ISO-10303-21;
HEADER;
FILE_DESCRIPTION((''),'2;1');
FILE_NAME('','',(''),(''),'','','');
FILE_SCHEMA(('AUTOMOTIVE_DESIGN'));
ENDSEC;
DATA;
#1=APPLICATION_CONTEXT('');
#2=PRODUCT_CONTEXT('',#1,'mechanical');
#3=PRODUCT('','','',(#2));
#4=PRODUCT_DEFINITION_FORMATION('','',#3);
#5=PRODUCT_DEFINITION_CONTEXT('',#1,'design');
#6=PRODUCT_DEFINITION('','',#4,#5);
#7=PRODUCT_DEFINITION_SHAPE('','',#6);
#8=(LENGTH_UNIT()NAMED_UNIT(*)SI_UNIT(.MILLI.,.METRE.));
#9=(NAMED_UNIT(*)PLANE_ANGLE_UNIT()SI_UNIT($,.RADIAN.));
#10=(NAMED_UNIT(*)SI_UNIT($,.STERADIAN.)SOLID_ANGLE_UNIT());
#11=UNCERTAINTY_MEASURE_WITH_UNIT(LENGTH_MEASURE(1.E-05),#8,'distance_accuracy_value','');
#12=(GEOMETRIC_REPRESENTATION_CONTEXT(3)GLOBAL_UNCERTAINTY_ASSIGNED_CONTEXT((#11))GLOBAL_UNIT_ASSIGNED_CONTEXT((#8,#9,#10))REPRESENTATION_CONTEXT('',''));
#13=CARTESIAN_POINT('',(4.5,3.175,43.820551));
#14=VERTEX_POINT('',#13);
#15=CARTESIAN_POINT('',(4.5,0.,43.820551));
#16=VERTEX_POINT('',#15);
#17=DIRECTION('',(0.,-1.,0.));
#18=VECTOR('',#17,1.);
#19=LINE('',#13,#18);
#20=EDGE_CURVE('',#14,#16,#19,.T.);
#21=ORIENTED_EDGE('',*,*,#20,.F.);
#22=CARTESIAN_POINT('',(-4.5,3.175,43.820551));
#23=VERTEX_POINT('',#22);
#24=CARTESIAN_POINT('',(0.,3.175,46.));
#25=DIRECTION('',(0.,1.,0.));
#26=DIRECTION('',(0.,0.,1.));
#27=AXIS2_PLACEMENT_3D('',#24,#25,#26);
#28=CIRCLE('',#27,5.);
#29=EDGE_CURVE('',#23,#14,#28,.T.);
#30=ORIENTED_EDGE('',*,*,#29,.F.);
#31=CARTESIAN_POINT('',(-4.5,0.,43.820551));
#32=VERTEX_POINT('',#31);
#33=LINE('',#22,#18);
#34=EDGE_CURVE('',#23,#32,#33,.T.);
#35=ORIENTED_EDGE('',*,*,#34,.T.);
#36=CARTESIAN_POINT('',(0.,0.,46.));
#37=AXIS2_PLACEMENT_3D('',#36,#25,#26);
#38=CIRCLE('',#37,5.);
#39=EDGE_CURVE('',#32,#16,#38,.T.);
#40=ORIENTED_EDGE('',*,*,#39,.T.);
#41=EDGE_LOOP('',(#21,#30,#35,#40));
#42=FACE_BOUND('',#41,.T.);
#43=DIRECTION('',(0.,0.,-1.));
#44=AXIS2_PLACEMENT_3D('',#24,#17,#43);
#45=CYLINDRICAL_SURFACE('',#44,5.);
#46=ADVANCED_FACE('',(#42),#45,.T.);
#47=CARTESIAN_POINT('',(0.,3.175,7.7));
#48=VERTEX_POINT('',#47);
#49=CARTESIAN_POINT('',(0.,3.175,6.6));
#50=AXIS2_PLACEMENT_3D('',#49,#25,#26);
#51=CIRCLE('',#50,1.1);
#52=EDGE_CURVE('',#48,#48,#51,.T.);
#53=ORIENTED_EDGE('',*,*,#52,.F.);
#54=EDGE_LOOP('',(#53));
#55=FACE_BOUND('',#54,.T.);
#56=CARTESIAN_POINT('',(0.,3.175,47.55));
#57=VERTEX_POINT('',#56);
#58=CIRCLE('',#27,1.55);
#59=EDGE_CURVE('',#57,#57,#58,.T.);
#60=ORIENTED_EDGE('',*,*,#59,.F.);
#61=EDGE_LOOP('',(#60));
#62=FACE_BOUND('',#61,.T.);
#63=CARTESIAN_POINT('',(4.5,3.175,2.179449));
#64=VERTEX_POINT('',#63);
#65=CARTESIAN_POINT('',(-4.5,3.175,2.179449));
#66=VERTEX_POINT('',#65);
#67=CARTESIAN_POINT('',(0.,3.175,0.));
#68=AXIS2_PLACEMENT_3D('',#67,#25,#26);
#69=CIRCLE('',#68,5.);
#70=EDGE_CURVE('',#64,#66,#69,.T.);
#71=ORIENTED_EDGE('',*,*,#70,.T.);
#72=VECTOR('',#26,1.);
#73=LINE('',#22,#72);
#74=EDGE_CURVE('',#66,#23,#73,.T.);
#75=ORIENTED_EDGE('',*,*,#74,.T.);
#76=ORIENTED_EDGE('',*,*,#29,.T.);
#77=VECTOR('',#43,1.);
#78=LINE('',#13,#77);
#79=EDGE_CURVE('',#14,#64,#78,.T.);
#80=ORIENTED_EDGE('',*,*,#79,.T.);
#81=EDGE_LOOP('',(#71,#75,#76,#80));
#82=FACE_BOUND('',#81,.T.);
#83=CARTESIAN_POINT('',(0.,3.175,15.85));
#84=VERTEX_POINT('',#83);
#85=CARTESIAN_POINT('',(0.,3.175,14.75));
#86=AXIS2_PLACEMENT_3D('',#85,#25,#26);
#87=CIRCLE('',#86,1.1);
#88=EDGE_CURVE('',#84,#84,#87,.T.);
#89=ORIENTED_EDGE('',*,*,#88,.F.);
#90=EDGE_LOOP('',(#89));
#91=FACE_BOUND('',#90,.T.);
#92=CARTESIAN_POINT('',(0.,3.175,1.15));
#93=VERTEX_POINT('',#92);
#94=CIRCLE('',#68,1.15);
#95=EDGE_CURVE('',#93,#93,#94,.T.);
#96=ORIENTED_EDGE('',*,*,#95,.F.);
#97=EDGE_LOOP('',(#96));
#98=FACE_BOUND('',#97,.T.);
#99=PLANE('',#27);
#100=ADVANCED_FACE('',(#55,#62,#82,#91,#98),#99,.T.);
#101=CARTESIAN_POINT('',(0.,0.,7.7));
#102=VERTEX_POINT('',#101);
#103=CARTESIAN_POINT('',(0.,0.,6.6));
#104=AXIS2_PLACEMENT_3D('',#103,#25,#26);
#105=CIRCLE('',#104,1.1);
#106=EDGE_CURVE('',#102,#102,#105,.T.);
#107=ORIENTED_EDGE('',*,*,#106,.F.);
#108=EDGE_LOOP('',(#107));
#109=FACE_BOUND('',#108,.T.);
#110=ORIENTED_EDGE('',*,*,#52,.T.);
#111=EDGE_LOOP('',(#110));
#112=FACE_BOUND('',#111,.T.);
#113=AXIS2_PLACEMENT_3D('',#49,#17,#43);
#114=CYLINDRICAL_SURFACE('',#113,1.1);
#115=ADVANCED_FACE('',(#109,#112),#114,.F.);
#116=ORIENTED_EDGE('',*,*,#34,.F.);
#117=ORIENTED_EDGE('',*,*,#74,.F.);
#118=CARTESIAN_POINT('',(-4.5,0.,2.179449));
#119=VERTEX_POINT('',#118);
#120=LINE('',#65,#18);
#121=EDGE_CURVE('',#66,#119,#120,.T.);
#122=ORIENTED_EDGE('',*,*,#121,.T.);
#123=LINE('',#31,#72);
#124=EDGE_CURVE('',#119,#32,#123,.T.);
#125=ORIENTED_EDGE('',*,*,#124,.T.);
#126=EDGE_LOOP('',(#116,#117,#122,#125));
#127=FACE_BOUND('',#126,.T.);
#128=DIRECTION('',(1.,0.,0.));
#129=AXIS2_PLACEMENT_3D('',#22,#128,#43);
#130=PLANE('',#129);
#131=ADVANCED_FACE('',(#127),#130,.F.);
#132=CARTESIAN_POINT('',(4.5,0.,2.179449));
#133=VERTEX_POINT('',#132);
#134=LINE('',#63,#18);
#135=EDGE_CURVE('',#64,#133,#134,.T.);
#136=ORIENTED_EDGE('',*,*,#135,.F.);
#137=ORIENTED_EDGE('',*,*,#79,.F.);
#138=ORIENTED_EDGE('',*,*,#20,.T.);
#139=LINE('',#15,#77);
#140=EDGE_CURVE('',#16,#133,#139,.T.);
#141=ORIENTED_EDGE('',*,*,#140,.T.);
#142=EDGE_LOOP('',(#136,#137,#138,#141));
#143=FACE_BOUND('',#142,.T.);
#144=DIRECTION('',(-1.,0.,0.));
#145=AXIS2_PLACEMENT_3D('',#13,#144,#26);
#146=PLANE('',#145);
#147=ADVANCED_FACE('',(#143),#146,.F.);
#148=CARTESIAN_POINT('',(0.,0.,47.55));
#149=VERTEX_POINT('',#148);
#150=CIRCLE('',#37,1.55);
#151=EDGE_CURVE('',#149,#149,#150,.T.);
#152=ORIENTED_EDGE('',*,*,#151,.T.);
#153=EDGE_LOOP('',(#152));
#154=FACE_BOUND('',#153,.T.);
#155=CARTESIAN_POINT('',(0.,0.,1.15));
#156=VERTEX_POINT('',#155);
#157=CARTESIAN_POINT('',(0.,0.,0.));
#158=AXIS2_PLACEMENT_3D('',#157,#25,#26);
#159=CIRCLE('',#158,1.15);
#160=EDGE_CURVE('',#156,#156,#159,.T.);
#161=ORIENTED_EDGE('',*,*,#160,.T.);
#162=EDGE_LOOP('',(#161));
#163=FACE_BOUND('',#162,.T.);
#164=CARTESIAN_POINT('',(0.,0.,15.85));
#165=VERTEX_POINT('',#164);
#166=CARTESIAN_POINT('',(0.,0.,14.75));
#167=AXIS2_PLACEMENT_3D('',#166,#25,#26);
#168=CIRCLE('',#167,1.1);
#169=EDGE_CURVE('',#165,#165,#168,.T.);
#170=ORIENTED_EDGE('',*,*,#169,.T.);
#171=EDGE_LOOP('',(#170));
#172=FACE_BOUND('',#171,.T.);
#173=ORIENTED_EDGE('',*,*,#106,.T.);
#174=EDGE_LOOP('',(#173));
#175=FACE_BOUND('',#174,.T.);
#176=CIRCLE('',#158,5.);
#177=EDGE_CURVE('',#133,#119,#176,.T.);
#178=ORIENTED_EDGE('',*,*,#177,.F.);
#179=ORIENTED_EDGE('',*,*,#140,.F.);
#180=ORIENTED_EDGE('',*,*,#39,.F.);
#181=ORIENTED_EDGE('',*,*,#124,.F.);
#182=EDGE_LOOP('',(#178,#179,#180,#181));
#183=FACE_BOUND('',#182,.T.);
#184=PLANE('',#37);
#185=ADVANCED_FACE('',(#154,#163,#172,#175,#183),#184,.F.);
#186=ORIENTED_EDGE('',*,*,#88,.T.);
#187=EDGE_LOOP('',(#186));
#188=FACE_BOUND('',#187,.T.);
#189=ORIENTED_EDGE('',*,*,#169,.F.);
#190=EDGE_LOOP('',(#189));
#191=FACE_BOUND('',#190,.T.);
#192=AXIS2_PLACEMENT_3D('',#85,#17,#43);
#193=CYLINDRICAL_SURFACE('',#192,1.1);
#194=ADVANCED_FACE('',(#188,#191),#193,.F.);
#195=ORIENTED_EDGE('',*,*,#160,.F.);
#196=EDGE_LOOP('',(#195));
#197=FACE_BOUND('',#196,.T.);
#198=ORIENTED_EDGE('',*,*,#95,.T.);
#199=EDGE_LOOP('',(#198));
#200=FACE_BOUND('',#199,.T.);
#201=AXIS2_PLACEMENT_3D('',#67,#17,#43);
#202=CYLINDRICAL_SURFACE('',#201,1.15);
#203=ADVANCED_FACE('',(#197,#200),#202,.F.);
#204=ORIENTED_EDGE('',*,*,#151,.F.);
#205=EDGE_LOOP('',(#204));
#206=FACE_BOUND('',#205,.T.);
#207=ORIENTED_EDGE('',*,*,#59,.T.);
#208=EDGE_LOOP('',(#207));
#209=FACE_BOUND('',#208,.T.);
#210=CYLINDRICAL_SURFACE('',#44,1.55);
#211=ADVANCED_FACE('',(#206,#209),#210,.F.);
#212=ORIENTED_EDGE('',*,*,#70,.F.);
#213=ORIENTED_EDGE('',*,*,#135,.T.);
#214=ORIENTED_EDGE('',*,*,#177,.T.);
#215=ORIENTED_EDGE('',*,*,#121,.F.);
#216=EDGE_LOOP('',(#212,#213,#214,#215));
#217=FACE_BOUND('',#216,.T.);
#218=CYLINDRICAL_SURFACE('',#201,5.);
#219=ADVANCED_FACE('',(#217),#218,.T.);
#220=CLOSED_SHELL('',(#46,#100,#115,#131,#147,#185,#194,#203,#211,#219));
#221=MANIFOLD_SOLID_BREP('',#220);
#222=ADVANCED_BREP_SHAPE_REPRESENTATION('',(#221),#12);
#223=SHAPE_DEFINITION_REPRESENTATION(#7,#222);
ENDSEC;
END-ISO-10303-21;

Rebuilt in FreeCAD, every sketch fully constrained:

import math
import FreeCAD as App
import Part
import Sketcher
from FreeCAD import Vector

doc = App.newDocument("Part")
body = doc.addObject("PartDesign::Body", "Body")

# Sketch on XZ plane
sketch1 = body.newObject("Sketcher::SketchObject", "Sketch")
sketch1.AttachmentSupport = (doc.getObject("XZ_Plane"), [""])
sketch1.MapMode = "FlatFace"
sketch1.addGeometry([
    Part.LineSegment(Vector(-4.5, 2.179449, 0), Vector(-4.5, 43.820551, 0)),  # 0
    Part.ArcOfCircle(Part.Circle(Vector(0, 46, 0), Vector(0, 0, 1), 5), math.radians(-25.841933), math.radians(205.841933)),  # 1
    Part.LineSegment(Vector(4.5, 43.820551, 0), Vector(4.5, 2.179449, 0)),  # 2
    Part.ArcOfCircle(Part.Circle(Vector(0, 0, 0), Vector(0, 0, 1), 5), math.radians(154.158067), math.radians(385.841933)),  # 3
    Part.Circle(Vector(0, 46, 0), Vector(0, 0, 1), 1.55),  # 4
    Part.Circle(Vector(0, 14.75, 0), Vector(0, 0, 1), 1.1),  # 5
    Part.Circle(Vector(0, 6.6, 0), Vector(0, 0, 1), 1.1),  # 6
    Part.Circle(Vector(0, 0, 0), Vector(0, 0, 1), 1.15),  # 7
], False)
sketch1.addConstraint([
    Sketcher.Constraint("Coincident", 0, 2, 1, 2),
    Sketcher.Constraint("Coincident", 1, 1, 2, 1),
    Sketcher.Constraint("Coincident", 2, 2, 3, 2),
    Sketcher.Constraint("Coincident", 3, 1, 0, 1),
    Sketcher.Constraint("Vertical", 0),
    Sketcher.Constraint("Vertical", 2),
    Sketcher.Constraint("Coincident", 3, 3, -1, 1),
    Sketcher.Constraint("Coincident", 7, 3, -1, 1),
    Sketcher.Constraint("Coincident", 4, 3, 1, 3),
    Sketcher.Constraint("Equal", 1, 3),
    Sketcher.Constraint("Equal", 5, 6),
    Sketcher.Constraint("Symmetric", 0, 2, 1, 1, -2),
    Sketcher.Constraint("PointOnObject", 5, 3, -2),
    Sketcher.Constraint("PointOnObject", 6, 3, -2),
    Sketcher.Constraint("Radius", 1, 5.0),
    Sketcher.Constraint("Diameter", 4, 3.1),
    Sketcher.Constraint("Diameter", 5, 2.2),
    Sketcher.Constraint("Diameter", 7, 2.3),
    Sketcher.Constraint("DistanceY", -1, 1, 1, 3, 46.0),
    Sketcher.Constraint("DistanceX", 0, 2, 1, 1, 9.0),
    Sketcher.Constraint("DistanceY", -1, 1, 6, 3, 6.6),
    Sketcher.Constraint("DistanceY", -1, 1, 5, 3, 14.75),
])
pad1 = body.newObject("PartDesign::Pad", "Pad")
pad1.Profile = sketch1
pad1.Length = 3.175
pad1.Reversed = True

doc.recompute()
